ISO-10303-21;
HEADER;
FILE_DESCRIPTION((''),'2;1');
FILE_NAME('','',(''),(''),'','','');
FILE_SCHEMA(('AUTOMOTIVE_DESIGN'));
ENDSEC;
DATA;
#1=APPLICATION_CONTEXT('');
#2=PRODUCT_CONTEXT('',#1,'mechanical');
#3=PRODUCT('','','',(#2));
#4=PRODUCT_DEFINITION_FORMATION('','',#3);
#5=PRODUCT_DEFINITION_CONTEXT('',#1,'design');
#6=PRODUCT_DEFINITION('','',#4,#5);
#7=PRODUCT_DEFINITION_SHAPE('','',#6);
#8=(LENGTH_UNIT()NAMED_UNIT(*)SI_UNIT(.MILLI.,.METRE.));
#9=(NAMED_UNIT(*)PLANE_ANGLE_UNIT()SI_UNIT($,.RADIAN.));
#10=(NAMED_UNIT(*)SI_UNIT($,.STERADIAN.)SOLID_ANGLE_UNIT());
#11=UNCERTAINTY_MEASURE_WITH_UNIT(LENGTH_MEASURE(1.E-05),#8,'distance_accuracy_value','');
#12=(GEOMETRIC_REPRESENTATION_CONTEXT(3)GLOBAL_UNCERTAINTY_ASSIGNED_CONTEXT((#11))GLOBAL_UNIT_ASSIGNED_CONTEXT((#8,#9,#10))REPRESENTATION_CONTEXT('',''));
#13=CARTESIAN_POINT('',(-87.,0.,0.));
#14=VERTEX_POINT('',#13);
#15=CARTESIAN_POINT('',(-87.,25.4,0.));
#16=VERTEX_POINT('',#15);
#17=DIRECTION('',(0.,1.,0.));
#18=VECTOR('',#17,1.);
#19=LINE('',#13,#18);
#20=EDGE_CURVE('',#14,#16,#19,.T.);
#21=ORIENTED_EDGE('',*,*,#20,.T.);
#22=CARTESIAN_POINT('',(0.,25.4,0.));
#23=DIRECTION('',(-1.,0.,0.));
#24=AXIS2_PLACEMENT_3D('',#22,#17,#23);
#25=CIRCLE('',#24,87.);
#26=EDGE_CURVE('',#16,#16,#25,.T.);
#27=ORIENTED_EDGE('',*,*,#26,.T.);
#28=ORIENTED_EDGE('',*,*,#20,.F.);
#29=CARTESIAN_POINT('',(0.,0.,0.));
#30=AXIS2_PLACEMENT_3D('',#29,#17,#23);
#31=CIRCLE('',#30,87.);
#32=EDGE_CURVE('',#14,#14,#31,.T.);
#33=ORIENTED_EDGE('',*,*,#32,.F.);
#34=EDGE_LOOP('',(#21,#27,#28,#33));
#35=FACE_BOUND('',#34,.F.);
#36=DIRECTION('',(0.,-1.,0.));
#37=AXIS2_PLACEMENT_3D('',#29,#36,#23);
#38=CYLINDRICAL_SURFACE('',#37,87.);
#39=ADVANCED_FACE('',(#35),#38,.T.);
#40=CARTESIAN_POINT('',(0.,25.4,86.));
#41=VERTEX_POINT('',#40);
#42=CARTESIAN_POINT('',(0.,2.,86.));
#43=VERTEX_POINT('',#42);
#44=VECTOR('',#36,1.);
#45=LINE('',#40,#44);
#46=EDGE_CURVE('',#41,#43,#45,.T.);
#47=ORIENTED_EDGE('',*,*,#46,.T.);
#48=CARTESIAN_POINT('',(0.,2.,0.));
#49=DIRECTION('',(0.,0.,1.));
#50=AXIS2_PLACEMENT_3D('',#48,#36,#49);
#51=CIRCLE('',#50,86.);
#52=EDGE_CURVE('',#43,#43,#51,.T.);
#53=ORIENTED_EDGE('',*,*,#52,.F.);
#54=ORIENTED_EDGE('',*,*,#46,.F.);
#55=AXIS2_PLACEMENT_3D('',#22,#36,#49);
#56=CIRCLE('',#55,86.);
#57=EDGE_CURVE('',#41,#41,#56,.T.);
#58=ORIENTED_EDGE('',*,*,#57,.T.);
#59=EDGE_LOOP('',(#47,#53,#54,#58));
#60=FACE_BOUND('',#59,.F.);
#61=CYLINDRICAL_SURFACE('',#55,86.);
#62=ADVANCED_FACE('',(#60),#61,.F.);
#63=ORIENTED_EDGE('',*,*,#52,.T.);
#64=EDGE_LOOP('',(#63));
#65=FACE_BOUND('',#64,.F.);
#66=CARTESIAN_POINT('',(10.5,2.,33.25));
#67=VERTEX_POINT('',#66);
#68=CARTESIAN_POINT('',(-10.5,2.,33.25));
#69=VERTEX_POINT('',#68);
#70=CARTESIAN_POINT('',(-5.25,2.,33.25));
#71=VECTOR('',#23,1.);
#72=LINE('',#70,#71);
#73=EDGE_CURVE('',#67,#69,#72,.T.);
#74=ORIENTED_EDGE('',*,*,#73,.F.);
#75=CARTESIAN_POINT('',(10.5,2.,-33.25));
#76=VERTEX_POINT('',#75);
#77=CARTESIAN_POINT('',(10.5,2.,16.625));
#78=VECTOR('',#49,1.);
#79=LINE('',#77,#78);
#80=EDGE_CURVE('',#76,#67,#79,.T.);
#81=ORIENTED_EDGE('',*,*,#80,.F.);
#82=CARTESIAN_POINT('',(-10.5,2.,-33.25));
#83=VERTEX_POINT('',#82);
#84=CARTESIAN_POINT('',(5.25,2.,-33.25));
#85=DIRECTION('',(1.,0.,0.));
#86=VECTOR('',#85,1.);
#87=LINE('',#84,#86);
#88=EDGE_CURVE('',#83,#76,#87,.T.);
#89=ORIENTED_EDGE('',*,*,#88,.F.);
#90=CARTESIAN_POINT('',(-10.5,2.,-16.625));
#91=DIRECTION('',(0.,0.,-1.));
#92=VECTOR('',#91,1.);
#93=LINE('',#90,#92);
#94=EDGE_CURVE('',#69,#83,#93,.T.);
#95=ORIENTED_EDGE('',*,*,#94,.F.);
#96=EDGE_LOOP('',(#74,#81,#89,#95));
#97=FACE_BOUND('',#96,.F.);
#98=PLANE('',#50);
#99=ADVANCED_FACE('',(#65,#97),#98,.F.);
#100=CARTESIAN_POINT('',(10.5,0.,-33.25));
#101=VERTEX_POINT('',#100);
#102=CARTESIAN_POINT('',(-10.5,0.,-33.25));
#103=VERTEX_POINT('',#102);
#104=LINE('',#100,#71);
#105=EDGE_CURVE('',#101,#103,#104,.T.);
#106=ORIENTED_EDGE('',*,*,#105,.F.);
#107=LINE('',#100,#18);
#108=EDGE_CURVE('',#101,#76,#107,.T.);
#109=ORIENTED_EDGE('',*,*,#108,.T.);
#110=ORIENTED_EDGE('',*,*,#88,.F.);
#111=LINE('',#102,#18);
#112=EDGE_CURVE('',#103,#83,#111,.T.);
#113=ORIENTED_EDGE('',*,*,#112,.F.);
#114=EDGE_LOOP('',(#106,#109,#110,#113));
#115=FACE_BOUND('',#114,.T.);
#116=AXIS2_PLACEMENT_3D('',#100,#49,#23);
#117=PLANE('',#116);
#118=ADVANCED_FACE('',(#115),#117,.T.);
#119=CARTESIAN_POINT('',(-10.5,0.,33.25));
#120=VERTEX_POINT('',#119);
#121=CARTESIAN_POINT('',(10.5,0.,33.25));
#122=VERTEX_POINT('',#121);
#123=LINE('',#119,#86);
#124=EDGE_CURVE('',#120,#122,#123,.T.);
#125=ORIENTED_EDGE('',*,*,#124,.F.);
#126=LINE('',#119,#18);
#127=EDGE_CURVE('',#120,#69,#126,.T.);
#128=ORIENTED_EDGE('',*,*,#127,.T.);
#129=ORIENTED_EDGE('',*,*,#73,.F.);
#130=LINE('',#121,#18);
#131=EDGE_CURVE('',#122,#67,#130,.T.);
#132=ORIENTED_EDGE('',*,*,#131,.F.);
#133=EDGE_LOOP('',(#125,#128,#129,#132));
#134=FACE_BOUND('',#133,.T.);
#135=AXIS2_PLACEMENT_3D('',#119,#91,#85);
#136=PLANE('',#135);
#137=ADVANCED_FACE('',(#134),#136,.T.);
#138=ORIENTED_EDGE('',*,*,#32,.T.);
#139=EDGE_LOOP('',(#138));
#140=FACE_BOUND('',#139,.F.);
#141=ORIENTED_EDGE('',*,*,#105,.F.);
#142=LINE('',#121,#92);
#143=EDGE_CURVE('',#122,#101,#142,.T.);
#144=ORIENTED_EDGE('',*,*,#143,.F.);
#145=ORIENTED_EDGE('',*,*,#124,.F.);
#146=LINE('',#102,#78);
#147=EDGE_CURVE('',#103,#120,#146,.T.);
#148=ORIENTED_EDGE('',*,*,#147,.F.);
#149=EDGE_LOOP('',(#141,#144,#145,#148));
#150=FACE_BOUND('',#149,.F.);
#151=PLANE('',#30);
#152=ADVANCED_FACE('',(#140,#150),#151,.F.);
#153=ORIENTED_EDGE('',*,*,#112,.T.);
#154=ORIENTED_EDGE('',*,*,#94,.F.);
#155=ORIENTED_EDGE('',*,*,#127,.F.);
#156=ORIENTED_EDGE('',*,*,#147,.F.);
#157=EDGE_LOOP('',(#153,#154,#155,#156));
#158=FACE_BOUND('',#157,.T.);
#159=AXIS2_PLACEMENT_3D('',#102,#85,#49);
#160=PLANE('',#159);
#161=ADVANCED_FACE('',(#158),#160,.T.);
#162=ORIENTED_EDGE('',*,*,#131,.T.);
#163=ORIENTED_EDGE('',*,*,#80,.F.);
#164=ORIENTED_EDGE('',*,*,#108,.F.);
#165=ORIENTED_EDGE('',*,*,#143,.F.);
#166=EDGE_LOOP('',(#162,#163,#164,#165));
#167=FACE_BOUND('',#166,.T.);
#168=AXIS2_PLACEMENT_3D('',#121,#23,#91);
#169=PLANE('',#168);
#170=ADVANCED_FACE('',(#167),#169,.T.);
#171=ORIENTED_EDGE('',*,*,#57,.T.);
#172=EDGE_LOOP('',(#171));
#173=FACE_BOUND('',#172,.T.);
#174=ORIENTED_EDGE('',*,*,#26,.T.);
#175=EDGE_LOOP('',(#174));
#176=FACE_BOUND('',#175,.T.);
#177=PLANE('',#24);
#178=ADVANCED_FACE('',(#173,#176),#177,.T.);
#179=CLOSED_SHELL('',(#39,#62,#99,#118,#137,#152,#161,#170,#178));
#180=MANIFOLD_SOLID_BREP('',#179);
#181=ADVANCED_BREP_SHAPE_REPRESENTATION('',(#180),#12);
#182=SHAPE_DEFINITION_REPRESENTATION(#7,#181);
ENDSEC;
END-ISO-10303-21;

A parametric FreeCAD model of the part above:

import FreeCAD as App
import Part
import Sketcher

V = App.Vector


def add_polygon(sketch, points):
    """Adds a closed chain of lines whose ends are joined by coincident constraints."""
    first, n = sketch.GeometryCount, len(points)
    for a, b in zip(points, points[1:] + points[:1]):
        sketch.addGeometry(Part.LineSegment(App.Vector(*a, 0), App.Vector(*b, 0)), False)
    for i in range(n):
        sketch.addConstraint(Sketcher.Constraint("Coincident", first + i, 2, first + (i + 1) % n, 1))

doc = App.newDocument("Part")
body = doc.addObject("PartDesign::Body", "Body")

# Sketch on XZ plane
sketch1 = body.newObject("Sketcher::SketchObject", "Sketch")
sketch1.AttachmentSupport = (doc.getObject("XZ_Plane"), [""])
sketch1.MapMode = "FlatFace"
sketch1.addGeometry(Part.Circle(V(0, 0, 0), V(0, 0, 1), 87), False)  # 0
add_polygon(sketch1, [(10.5, 33.25), (-10.5, 33.25), (-10.5, -33.25), (10.5, -33.25)])  # lines 1-4
sketch1.addConstraint(Sketcher.Constraint("Horizontal", 1))
sketch1.addConstraint(Sketcher.Constraint("Vertical", 2))
sketch1.addConstraint(Sketcher.Constraint("Horizontal", 3))
sketch1.addConstraint(Sketcher.Constraint("Vertical", 4))
sketch1.addConstraint(Sketcher.Constraint("Coincident", 0, 3, -1, 1))
sketch1.addConstraint(Sketcher.Constraint("Symmetric", 1, 2, 3, 2, -1, 1))
sketch1.addConstraint(Sketcher.Constraint("Diameter", 0, 174.0))
sketch1.addConstraint(Sketcher.Constraint("DistanceX", 1, 2, 1, 1, 21.0))
sketch1.addConstraint(Sketcher.Constraint("DistanceY", 2, 2, 2, 1, 66.5))
pad1 = body.newObject("PartDesign::Pad", "Pad")
pad1.Profile = sketch1
pad1.Length = 25.4
pad1.Reversed = True

# Sketch on XZ plane
sketch2 = body.newObject("Sketcher::SketchObject", "Sketch001")
sketch2.AttachmentSupport = (doc.getObject("XZ_Plane"), [""])
sketch2.MapMode = "FlatFace"
sketch2.AttachmentOffset = App.Placement(V(0, 0, -25.4), App.Rotation())
sketch2.addGeometry(Part.Circle(V(0, 0, 0), V(0, 0, 1), 86), False)
sketch2.addConstraint(Sketcher.Constraint("Coincident", 0, 3, -1, 1))
sketch2.addConstraint(Sketcher.Constraint("Diameter", 0, 172.0))
doc.recompute()
hole = body.newObject("PartDesign::Hole", "Hole")
hole.Profile = sketch2
hole.ThreadType = "None"
hole.Diameter = 172
hole.DepthType = "Dimension"
hole.Depth = 23.4
hole.DrillPoint = "Flat"
hole.Reversed = True

doc.recompute()
